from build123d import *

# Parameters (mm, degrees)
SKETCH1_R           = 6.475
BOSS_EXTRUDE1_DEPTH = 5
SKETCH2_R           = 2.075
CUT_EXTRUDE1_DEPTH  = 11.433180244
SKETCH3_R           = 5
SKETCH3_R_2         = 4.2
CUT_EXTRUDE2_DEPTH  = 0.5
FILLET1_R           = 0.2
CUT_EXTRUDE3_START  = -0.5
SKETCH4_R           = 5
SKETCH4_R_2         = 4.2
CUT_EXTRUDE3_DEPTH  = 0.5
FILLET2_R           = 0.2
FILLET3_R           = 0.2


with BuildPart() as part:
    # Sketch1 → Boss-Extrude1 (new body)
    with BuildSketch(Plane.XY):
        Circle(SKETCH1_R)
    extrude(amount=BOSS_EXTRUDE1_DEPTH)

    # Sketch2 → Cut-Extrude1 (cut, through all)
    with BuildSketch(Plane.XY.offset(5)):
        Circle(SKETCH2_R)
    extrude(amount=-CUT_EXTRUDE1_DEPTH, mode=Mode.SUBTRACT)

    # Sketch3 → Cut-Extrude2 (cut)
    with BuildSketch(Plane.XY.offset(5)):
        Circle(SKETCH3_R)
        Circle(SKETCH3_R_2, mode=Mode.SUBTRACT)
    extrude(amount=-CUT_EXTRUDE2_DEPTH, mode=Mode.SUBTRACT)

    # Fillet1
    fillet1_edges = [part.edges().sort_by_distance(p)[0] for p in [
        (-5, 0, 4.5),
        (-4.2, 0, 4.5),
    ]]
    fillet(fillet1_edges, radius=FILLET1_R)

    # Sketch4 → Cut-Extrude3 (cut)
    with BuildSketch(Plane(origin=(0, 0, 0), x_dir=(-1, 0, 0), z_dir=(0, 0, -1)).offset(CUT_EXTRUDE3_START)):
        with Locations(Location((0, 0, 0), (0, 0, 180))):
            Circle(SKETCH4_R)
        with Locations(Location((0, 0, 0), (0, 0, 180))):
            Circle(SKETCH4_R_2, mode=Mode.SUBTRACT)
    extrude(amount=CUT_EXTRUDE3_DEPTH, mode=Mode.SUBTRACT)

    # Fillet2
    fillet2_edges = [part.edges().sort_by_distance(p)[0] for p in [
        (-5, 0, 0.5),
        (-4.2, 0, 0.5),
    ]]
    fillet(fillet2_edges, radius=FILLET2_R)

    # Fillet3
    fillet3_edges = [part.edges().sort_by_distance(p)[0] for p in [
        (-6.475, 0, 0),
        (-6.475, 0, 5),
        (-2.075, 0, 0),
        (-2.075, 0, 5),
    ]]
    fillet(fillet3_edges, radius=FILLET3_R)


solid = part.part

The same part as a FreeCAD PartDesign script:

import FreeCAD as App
import Part
import Sketcher

V = App.Vector
Q = App.Units.Quantity


def edges_at(feature, points):
    """Names of the edges that pass closest to the given points."""
    edges = feature.Shape.Edges
    near = lambda p: min(range(len(edges)), key=lambda i: edges[i].distToShape(Part.Vertex(*p))[0])
    return sorted({f"Edge{near(p) + 1}" for p in points})

doc = App.newDocument("Part")
body = doc.addObject("PartDesign::Body", "Body")

sketch1 = body.newObject("Sketcher::SketchObject", "Sketch")
sketch1.AttachmentSupport = (doc.getObject("XY_Plane"), [""])
sketch1.MapMode = "FlatFace"
sketch1.addGeometry(Part.Circle(V(0, 0, 0), V(0, 0, 1), 6), False)
sketch1.addConstraint(Sketcher.Constraint("Coincident", 0, 3, -1, 1))
sketch1.addConstraint(Sketcher.Constraint("Diameter", 0, Q("12.95 mm")))
pad1 = body.newObject("PartDesign::Pad", "Pad")
pad1.Profile = sketch1
pad1.Length = 5

sketch2 = body.newObject("Sketcher::SketchObject", "Sketch001")
sketch2.AttachmentSupport = (doc.getObject("XY_Plane"), [""])
sketch2.MapMode = "FlatFace"
sketch2.AttachmentOffset = App.Placement(V(0, 0, 5), App.Rotation())
sketch2.addGeometry(Part.Circle(V(0, 0, 0), V(0, 0, 1), 2.1), False)
sketch2.addConstraint(Sketcher.Constraint("Coincident", 0, 3, -1, 1))
sketch2.addConstraint(Sketcher.Constraint("Diameter", 0, Q("4.15 mm")))
pocket1 = body.newObject("PartDesign::Pocket", "Pocket")
pocket1.Profile = sketch2
pocket1.Type = "ThroughAll"

sketch3 = body.newObject("Sketcher::SketchObject", "Sketch002")
sketch3.AttachmentSupport = (doc.getObject("XY_Plane"), [""])
sketch3.MapMode = "FlatFace"
sketch3.AttachmentOffset = App.Placement(V(0, 0, 5), App.Rotation())
sketch3.addGeometry(Part.Circle(V(0, 0, 0), V(0, 0, 1), 5), False)
sketch3.addGeometry(Part.Circle(V(0, 0, 0), V(0, 0, 1), 4.2), False)
sketch3.addConstraint(Sketcher.Constraint("Coincident", 0, 3, -1, 1))
sketch3.addConstraint(Sketcher.Constraint("Coincident", 1, 3, -1, 1))
sketch3.addConstraint(Sketcher.Constraint("Diameter", 0, Q("10 mm")))
sketch3.addConstraint(Sketcher.Constraint("Diameter", 1, Q("8.4 mm")))
pocket2 = body.newObject("PartDesign::Pocket", "Pocket001")
pocket2.Profile = sketch3
pocket2.Length = 0.5
doc.recompute()

fillet = body.newObject("PartDesign::Fillet", "Fillet")
fillet.Base = (pocket2, edges_at(pocket2, [(-5, 0, 4.5), (-4.2, 0, 4.5)]))
fillet.Radius = 0.2

sketch4 = body.newObject("Sketcher::SketchObject", "Sketch003")
sketch4.AttachmentSupport = (doc.getObject("XY_Plane"), [""])
sketch4.MapMode = "FlatFace"
sketch4.AttachmentOffset = App.Placement(V(0, 0, 0.5), App.Rotation())
sketch4.addGeometry(Part.Circle(V(0, 0, 0), V(0, 0, 1), 5), False)
sketch4.addGeometry(Part.Circle(V(0, 0, 0), V(0, 0, 1), 4.2), False)
sketch4.addConstraint(Sketcher.Constraint("Coincident", 0, 3, -1, 1))
sketch4.addConstraint(Sketcher.Constraint("Coincident", 1, 3, -1, 1))
sketch4.addConstraint(Sketcher.Constraint("Diameter", 0, Q("10 mm")))
sketch4.addConstraint(Sketcher.Constraint("Diameter", 1, Q("8.4 mm")))
pocket3 = body.newObject("PartDesign::Pocket", "Pocket002")
pocket3.Profile = sketch4
pocket3.Length = 0.5
doc.recompute()

fillet2 = body.newObject("PartDesign::Fillet", "Fillet001")
fillet2.Base = (pocket3, edges_at(pocket3, [(-5, 0, 0.5), (-4.2, 0, 0.5)]))
fillet2.Radius = 0.2
doc.recompute()

fillet3 = body.newObject("PartDesign::Fillet", "Fillet002")
fillet3.Base = (fillet2, edges_at(fillet2, [
    (-6.475, 0, 0),
    (-6.475, 0, 5),
    (-2.075, 0, 0),
    (-2.075, 0, 5),
]))
fillet3.Radius = 0.2

doc.recompute()
